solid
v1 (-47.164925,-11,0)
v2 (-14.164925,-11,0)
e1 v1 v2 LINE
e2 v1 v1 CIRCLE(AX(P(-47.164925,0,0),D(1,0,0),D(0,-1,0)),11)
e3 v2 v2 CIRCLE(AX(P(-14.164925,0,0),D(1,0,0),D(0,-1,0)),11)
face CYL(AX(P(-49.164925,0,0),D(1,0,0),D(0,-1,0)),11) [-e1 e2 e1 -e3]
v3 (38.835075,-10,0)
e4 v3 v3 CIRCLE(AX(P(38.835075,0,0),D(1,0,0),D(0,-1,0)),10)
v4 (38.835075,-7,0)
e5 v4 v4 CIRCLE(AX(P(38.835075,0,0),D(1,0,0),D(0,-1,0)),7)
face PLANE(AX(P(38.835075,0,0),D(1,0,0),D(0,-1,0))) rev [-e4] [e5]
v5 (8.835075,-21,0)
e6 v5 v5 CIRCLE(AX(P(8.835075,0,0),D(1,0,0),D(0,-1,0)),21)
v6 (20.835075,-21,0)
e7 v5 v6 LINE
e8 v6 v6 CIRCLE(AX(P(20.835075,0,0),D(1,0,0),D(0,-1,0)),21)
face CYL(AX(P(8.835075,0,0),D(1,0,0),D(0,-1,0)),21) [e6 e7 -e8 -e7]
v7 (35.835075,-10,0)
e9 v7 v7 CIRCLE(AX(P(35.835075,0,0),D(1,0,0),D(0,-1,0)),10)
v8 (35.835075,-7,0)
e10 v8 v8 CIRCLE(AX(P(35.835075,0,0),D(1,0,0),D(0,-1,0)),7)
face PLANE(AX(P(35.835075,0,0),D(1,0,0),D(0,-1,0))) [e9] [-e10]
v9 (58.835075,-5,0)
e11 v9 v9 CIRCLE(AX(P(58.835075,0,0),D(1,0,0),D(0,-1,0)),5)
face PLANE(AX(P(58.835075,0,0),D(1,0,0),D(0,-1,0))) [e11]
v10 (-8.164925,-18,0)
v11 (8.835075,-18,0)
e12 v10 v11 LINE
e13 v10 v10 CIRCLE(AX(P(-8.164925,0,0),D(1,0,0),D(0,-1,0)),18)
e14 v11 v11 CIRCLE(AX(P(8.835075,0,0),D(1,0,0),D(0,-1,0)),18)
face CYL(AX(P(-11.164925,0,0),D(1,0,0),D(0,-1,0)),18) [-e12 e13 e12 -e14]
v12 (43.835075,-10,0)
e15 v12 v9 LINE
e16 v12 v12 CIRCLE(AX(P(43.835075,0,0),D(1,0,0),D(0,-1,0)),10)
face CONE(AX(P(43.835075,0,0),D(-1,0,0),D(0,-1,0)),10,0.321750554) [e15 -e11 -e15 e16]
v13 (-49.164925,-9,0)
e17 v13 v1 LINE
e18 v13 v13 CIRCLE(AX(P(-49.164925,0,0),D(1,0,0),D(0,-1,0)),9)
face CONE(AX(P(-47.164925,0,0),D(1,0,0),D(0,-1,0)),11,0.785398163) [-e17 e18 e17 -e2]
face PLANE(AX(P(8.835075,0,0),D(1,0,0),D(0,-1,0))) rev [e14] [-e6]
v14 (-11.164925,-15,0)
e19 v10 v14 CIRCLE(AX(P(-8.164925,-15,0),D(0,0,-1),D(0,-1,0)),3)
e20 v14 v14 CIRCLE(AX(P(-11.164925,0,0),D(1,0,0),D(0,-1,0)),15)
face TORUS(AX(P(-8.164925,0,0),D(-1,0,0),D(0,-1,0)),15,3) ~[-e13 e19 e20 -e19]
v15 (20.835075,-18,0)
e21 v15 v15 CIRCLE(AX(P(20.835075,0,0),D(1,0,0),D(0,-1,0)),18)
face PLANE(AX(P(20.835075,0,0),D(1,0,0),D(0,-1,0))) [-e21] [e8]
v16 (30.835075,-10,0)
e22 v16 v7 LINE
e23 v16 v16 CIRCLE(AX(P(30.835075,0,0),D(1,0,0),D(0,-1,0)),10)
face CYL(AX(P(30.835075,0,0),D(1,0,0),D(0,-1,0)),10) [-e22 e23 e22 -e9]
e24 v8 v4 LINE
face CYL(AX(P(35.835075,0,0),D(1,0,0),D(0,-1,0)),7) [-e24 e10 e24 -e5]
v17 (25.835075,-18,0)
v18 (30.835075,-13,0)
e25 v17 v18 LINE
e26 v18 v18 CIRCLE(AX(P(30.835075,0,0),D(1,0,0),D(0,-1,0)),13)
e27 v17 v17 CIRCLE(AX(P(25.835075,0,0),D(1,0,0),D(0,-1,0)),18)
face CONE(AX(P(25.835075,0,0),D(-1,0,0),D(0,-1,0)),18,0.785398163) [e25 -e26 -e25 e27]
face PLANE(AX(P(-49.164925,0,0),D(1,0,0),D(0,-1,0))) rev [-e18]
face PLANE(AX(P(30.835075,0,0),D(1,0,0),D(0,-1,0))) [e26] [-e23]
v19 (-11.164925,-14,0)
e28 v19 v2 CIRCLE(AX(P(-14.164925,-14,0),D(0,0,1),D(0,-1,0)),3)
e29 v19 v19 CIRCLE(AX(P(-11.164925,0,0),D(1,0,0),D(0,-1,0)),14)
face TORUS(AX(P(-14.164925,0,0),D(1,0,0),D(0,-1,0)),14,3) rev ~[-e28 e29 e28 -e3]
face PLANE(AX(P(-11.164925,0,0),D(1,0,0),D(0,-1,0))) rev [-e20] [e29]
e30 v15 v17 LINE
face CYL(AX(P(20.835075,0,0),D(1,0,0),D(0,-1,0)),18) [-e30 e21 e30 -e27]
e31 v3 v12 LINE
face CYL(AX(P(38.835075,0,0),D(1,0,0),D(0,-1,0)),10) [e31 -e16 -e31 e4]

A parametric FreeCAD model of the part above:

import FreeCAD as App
import Part
import Sketcher
from FreeCAD import Vector
Q = App.Units.Quantity


def edges_at(feature, points):
    """Names of the edges that pass closest to the given points."""
    edges = feature.Shape.Edges
    near = lambda p: min(range(len(edges)), key=lambda i: edges[i].distToShape(Part.Vertex(*p))[0])
    return sorted({f"Edge{near(p) + 1}" for p in points})


def add_polygon(sketch, points):
    """Adds a closed chain of lines whose ends are joined by coincident constraints."""
    first, n = sketch.GeometryCount, len(points)
    for a, b in zip(points, points[1:] + points[:1]):
        sketch.addGeometry(Part.LineSegment(App.Vector(*a, 0), App.Vector(*b, 0)), False)
    for i in range(n):
        sketch.addConstraint(Sketcher.Constraint("Coincident", first + i, 2, first + (i + 1) % n, 1))

doc = App.newDocument("Part")
body = doc.addObject("PartDesign::Body", "Body")

sketch1 = body.newObject("Sketcher::SketchObject", "Sketch")
sketch1.AttachmentSupport = (doc.getObject("XY_Plane"), [""])
sketch1.MapMode = "FlatFace"
add_polygon(sketch1, [(58.835075, 0), (-49.164925, 0), (-49.164925, -11), (-11.164925, -11), (-11.164925, -18), (8.835075, -18), (8.835075, -21), (20.835075, -21), (20.835075, -18), (30.835075, -18), (30.835075, -10), (35.835075, -10), (35.835075, -7), (38.835075, -7), (38.835075, -10), (43.835075, -10), (58.835075, -5)])
sketch1.addConstraint(Sketcher.Constraint("Horizontal", 0))
sketch1.addConstraint(Sketcher.Constraint("Vertical", 1))
sketch1.addConstraint(Sketcher.Constraint("Horizontal", 2))
sketch1.addConstraint(Sketcher.Constraint("Vertical", 3))
sketch1.addConstraint(Sketcher.Constraint("Horizontal", 4))
sketch1.addConstraint(Sketcher.Constraint("Vertical", 5))
sketch1.addConstraint(Sketcher.Constraint("Horizontal", 6))
sketch1.addConstraint(Sketcher.Constraint("Vertical", 7))
sketch1.addConstraint(Sketcher.Constraint("Horizontal", 8))
sketch1.addConstraint(Sketcher.Constraint("Vertical", 9))
sketch1.addConstraint(Sketcher.Constraint("Horizontal", 10))
sketch1.addConstraint(Sketcher.Constraint("Vertical", 11))
sketch1.addConstraint(Sketcher.Constraint("Horizontal", 12))
sketch1.addConstraint(Sketcher.Constraint("Vertical", 13))
sketch1.addConstraint(Sketcher.Constraint("Horizontal", 14))
sketch1.addConstraint(Sketcher.Constraint("Vertical", 16))
sketch1.addConstraint(Sketcher.Constraint("PointOnObject", 0, 2, -1))
sketch1.addConstraint(Sketcher.Constraint("Horizontal", 4, 2, 7, 2))
sketch1.addConstraint(Sketcher.Constraint("Horizontal", 10, 2, 13, 2))
sketch1.addConstraint(Sketcher.Constraint("Equal", 10, 14))
sketch1.addConstraint(Sketcher.Constraint("Equal", 12, 5))
sketch1.addConstraint(Sketcher.Constraint("Equal", 7, 11))
sketch1.addConstraint(Sketcher.Constraint("Equal", 14, 16))
sketch1.addConstraint(Sketcher.Constraint("DistanceX", 0, 2, 0, 1, Q("108 mm")))
sketch1.addConstraint(Sketcher.Constraint("DistanceX", 2, 1, 2, 2, Q("38 mm")))
sketch1.addConstraint(Sketcher.Constraint("DistanceX", 4, 1, 4, 2, Q("20 mm")))
sketch1.addConstraint(Sketcher.Constraint("DistanceX", 6, 1, 6, 2, Q("12 mm")))
sketch1.addConstraint(Sketcher.Constraint("DistanceX", 8, 1, 8, 2, Q("10 mm")))
sketch1.addConstraint(Sketcher.Constraint("DistanceX", 10, 1, 10, 2, Q("5 mm")))
sketch1.addConstraint(Sketcher.Constraint("DistanceX", 12, 1, 12, 2, Q("3 mm")))
sketch1.addConstraint(Sketcher.Constraint("DistanceY", 1, 2, 1, 1, Q("11 mm")))
sketch1.addConstraint(Sketcher.Constraint("DistanceY", 3, 2, 3, 1, Q("7 mm")))
sketch1.addConstraint(Sketcher.Constraint("DistanceY", 9, 1, 9, 2, Q("8 mm")))
sketch1.addConstraint(Sketcher.Constraint("DistanceX", 0, 2, -1, 1, Q("49.164925 mm")))
revolution = body.newObject("PartDesign::Revolution", "Revolution")
revolution.Profile = sketch1
revolution.ReferenceAxis = (sketch1, ["H_Axis"])
revolution.Angle = 360
doc.recompute()

chamfer = body.newObject("PartDesign::Chamfer", "Chamfer")
chamfer.Base = (revolution, edges_at(revolution, [(-49.165, 11, 0)]))
chamfer.ChamferType = "Two distances"
chamfer.Size = 2
chamfer.Size2 = 2
doc.recompute()

chamfer2 = body.newObject("PartDesign::Chamfer", "Chamfer001")
chamfer2.Base = (chamfer, edges_at(chamfer, [(30.835, 18, 0)]))
chamfer2.Size = 5
doc.recompute()

fillet = body.newObject("PartDesign::Fillet", "Fillet")
fillet.Base = (chamfer2, edges_at(chamfer2, [(-11.165, 18, 0), (-11.165, 11, 0)]))
fillet.Radius = 3

doc.recompute()
